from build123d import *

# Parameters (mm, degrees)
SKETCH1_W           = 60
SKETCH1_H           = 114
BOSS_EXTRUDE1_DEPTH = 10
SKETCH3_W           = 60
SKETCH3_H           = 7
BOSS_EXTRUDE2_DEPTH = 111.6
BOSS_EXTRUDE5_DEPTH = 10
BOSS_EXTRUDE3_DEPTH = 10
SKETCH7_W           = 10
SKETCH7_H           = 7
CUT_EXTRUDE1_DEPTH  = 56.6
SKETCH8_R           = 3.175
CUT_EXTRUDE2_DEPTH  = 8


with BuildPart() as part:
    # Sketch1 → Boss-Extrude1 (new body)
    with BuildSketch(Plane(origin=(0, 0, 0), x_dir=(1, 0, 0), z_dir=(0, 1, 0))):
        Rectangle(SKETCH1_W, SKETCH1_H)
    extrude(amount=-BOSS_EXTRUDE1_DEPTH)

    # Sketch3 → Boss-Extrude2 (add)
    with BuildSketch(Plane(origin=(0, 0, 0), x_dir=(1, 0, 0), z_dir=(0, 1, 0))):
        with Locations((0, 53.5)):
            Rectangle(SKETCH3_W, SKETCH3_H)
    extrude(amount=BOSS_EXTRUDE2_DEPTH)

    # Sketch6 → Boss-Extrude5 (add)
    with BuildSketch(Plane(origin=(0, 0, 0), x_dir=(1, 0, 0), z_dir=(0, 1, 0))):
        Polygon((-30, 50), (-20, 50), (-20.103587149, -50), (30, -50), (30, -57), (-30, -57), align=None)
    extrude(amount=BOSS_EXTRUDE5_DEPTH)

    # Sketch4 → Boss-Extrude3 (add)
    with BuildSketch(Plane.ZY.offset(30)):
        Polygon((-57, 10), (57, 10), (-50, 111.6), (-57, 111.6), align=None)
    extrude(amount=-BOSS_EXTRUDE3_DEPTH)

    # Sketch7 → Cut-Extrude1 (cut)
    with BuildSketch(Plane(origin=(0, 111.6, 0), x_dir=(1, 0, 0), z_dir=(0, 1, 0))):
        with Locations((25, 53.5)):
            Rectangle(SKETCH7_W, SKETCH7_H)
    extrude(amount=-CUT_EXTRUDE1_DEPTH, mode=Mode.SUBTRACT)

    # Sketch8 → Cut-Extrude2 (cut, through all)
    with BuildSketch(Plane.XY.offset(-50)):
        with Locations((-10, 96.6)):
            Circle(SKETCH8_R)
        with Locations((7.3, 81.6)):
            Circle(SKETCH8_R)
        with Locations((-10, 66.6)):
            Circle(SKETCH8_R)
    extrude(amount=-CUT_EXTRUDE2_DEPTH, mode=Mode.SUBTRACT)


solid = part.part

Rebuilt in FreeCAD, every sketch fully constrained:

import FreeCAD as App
import Part
import Sketcher
from FreeCAD import Vector
Q = App.Units.Quantity


def add_polygon(sketch, points):
    """Adds a closed chain of lines whose ends are joined by coincident constraints."""
    first, n = sketch.GeometryCount, len(points)
    for a, b in zip(points, points[1:] + points[:1]):
        sketch.addGeometry(Part.LineSegment(App.Vector(*a, 0), App.Vector(*b, 0)), False)
    for i in range(n):
        sketch.addConstraint(Sketcher.Constraint("Coincident", first + i, 2, first + (i + 1) % n, 1))

doc = App.newDocument("Part")
body = doc.addObject("PartDesign::Body", "Body")

# Sketch on XZ plane
sketch1 = body.newObject("Sketcher::SketchObject", "Sketch")
sketch1.AttachmentSupport = (doc.getObject("XZ_Plane"), [""])
sketch1.MapMode = "FlatFace"
add_polygon(sketch1, [(-30, -57), (-30, 57), (30, 57), (30, -57)])  # lines 0-3
sketch1.addConstraint(Sketcher.Constraint("Vertical", 0))
sketch1.addConstraint(Sketcher.Constraint("Horizontal", 1))
sketch1.addConstraint(Sketcher.Constraint("Vertical", 2))
sketch1.addConstraint(Sketcher.Constraint("Horizontal", 3))
sketch1.addConstraint(Sketcher.Constraint("Symmetric", 0, 2, 2, 2, -1, 1))
sketch1.addConstraint(Sketcher.Constraint("DistanceX", 1, 1, 1, 2, Q("60 mm")))
sketch1.addConstraint(Sketcher.Constraint("DistanceY", 0, 1, 0, 2, Q("114 mm")))
pad1 = body.newObject("PartDesign::Pad", "Pad")
pad1.Profile = sketch1
pad1.Length = 10

# Sketch on XZ plane
sketch2 = body.newObject("Sketcher::SketchObject", "Sketch001")
sketch2.AttachmentSupport = (doc.getObject("XZ_Plane"), [""])
sketch2.MapMode = "FlatFace"
add_polygon(sketch2, [(-30, -57), (-30, -50), (30, -50), (30, -57)])  # lines 0-3
sketch2.addConstraint(Sketcher.Constraint("Vertical", 0))
sketch2.addConstraint(Sketcher.Constraint("Horizontal", 1))
sketch2.addConstraint(Sketcher.Constraint("Vertical", 2))
sketch2.addConstraint(Sketcher.Constraint("Horizontal", 3))
sketch2.addConstraint(Sketcher.Constraint("DistanceX", 1, 1, 1, 2, Q("60 mm")))
sketch2.addConstraint(Sketcher.Constraint("DistanceY", 0, 1, 0, 2, Q("7 mm")))
sketch2.addConstraint(Sketcher.Constraint("DistanceX", 0, 2, -1, 1, Q("30 mm")))
sketch2.addConstraint(Sketcher.Constraint("DistanceY", 0, 2, -1, 1, Q("50 mm")))
pad2 = body.newObject("PartDesign::Pad", "Pad001")
pad2.Profile = sketch2
pad2.Length = 111.6
pad2.Reversed = True

# Sketch on XZ plane
sketch3 = body.newObject("Sketcher::SketchObject", "Sketch002")
sketch3.AttachmentSupport = (doc.getObject("XZ_Plane"), [""])
sketch3.MapMode = "FlatFace"
add_polygon(sketch3, [(-20, -50), (-30, -50), (-30, 57), (30, 57), (30, 50), (-20.103587, 50)])  # lines 0-5
sketch3.addConstraint(Sketcher.Constraint("Horizontal", 0))
sketch3.addConstraint(Sketcher.Constraint("Vertical", 1))
sketch3.addConstraint(Sketcher.Constraint("Horizontal", 2))
sketch3.addConstraint(Sketcher.Constraint("Vertical", 3))
sketch3.addConstraint(Sketcher.Constraint("Horizontal", 4))
sketch3.addConstraint(Sketcher.Constraint("Symmetric", 0, 2, 3, 2, -1, 1))
sketch3.addConstraint(Sketcher.Constraint("DistanceX", 0, 2, 0, 1, Q("10 mm")))
sketch3.addConstraint(Sketcher.Constraint("DistanceX", 2, 1, 2, 2, Q("60 mm")))
sketch3.addConstraint(Sketcher.Constraint("DistanceY", 1, 1, 1, 2, Q("107 mm")))
sketch3.addConstraint(Sketcher.Constraint("DistanceY", 3, 2, 3, 1, Q("7 mm")))
sketch3.addConstraint(Sketcher.Constraint("DistanceX", 4, 2, 4, 1, Q("50.103587 mm")))
pad3 = body.newObject("PartDesign::Pad", "Pad002")
pad3.Profile = sketch3
pad3.Length = 10
pad3.Reversed = True

# Sketch on YZ plane
sketch4 = body.newObject("Sketcher::SketchObject", "Sketch003")
sketch4.AttachmentSupport = (doc.getObject("YZ_Plane"), [""])
sketch4.MapMode = "FlatFace"
sketch4.AttachmentOffset = App.Placement(Vector(0, 0, -30), App.Rotation())
add_polygon(sketch4, [(10, -57), (10, 57), (111.6, -50), (111.6, -57)])  # lines 0-3
sketch4.addConstraint(Sketcher.Constraint("Vertical", 0))
sketch4.addConstraint(Sketcher.Constraint("Vertical", 2))
sketch4.addConstraint(Sketcher.Constraint("Horizontal", 3))
sketch4.addConstraint(Sketcher.Constraint("DistanceY", 0, 1, 0, 2, Q("114 mm")))
sketch4.addConstraint(Sketcher.Constraint("DistanceY", 2, 2, 2, 1, Q("7 mm")))
sketch4.addConstraint(Sketcher.Constraint("DistanceX", 3, 2, 3, 1, Q("101.6 mm")))
sketch4.addConstraint(Sketcher.Constraint("DistanceX", -1, 1, 0, 2, Q("10 mm")))
sketch4.addConstraint(Sketcher.Constraint("DistanceY", -1, 1, 0, 2, Q("57 mm")))
pad4 = body.newObject("PartDesign::Pad", "Pad003")
pad4.Profile = sketch4
pad4.Length = 10

# Sketch on XZ plane
sketch5 = body.newObject("Sketcher::SketchObject", "Sketch004")
sketch5.AttachmentSupport = (doc.getObject("XZ_Plane"), [""])
sketch5.MapMode = "FlatFace"
sketch5.AttachmentOffset = App.Placement(Vector(0, 0, -111.6), App.Rotation())
add_polygon(sketch5, [(20, -57), (20, -50), (30, -50), (30, -57)])  # lines 0-3
sketch5.addConstraint(Sketcher.Constraint("Vertical", 0))
sketch5.addConstraint(Sketcher.Constraint("Horizontal", 1))
sketch5.addConstraint(Sketcher.Constraint("Vertical", 2))
sketch5.addConstraint(Sketcher.Constraint("Horizontal", 3))
sketch5.addConstraint(Sketcher.Constraint("DistanceX", 1, 1, 1, 2, Q("10 mm")))
sketch5.addConstraint(Sketcher.Constraint("DistanceY", 0, 1, 0, 2, Q("7 mm")))
sketch5.addConstraint(Sketcher.Constraint("DistanceX", -1, 1, 0, 2, Q("20 mm")))
sketch5.addConstraint(Sketcher.Constraint("DistanceY", 0, 2, -1, 1, Q("50 mm")))
pocket1 = body.newObject("PartDesign::Pocket", "Pocket")
pocket1.Profile = sketch5
pocket1.Length = 56.6
pocket1.Reversed = True

# Sketch on XY plane
sketch6 = body.newObject("Sketcher::SketchObject", "Sketch005")
sketch6.AttachmentSupport = (doc.getObject("XY_Plane"), [""])
sketch6.MapMode = "FlatFace"
sketch6.AttachmentOffset = App.Placement(Vector(0, 0, -50), App.Rotation())
sketch6.addGeometry(Part.Circle(Vector(-10, 96.6, 0), Vector(0, 0, 1), 3.175), False)
sketch6.addGeometry(Part.Circle(Vector(7.3, 81.6, 0), Vector(0, 0, 1), 3.175), False)
sketch6.addGeometry(Part.Circle(Vector(-10, 66.6, 0), Vector(0, 0, 1), 3.175), False)
sketch6.addConstraint(Sketcher.Constraint("Equal", 0, 1))
sketch6.addConstraint(Sketcher.Constraint("Equal", 1, 2))
sketch6.addConstraint(Sketcher.Constraint("Vertical", 0, 3, 2, 3))
sketch6.addConstraint(Sketcher.Constraint("Diameter", 0, Q("6.35 mm")))
sketch6.addConstraint(Sketcher.Constraint("DistanceX", 0, 3, -1, 1, Q("10 mm")))
sketch6.addConstraint(Sketcher.Constraint("DistanceY", 1, 3, 0, 3, Q("15 mm")))
sketch6.addConstraint(Sketcher.Constraint("DistanceY", 2, 3, 1, 3, Q("15 mm")))
sketch6.addConstraint(Sketcher.Constraint("DistanceY", -1, 1, 0, 3, Q("96.6 mm")))
sketch6.addConstraint(Sketcher.Constraint("DistanceX", -1, 1, 1, 3, Q("7.3 mm")))
pocket2 = body.newObject("PartDesign::Pocket", "Pocket001")
pocket2.Profile = sketch6
pocket2.Type = "ThroughAll"

doc.recompute()
